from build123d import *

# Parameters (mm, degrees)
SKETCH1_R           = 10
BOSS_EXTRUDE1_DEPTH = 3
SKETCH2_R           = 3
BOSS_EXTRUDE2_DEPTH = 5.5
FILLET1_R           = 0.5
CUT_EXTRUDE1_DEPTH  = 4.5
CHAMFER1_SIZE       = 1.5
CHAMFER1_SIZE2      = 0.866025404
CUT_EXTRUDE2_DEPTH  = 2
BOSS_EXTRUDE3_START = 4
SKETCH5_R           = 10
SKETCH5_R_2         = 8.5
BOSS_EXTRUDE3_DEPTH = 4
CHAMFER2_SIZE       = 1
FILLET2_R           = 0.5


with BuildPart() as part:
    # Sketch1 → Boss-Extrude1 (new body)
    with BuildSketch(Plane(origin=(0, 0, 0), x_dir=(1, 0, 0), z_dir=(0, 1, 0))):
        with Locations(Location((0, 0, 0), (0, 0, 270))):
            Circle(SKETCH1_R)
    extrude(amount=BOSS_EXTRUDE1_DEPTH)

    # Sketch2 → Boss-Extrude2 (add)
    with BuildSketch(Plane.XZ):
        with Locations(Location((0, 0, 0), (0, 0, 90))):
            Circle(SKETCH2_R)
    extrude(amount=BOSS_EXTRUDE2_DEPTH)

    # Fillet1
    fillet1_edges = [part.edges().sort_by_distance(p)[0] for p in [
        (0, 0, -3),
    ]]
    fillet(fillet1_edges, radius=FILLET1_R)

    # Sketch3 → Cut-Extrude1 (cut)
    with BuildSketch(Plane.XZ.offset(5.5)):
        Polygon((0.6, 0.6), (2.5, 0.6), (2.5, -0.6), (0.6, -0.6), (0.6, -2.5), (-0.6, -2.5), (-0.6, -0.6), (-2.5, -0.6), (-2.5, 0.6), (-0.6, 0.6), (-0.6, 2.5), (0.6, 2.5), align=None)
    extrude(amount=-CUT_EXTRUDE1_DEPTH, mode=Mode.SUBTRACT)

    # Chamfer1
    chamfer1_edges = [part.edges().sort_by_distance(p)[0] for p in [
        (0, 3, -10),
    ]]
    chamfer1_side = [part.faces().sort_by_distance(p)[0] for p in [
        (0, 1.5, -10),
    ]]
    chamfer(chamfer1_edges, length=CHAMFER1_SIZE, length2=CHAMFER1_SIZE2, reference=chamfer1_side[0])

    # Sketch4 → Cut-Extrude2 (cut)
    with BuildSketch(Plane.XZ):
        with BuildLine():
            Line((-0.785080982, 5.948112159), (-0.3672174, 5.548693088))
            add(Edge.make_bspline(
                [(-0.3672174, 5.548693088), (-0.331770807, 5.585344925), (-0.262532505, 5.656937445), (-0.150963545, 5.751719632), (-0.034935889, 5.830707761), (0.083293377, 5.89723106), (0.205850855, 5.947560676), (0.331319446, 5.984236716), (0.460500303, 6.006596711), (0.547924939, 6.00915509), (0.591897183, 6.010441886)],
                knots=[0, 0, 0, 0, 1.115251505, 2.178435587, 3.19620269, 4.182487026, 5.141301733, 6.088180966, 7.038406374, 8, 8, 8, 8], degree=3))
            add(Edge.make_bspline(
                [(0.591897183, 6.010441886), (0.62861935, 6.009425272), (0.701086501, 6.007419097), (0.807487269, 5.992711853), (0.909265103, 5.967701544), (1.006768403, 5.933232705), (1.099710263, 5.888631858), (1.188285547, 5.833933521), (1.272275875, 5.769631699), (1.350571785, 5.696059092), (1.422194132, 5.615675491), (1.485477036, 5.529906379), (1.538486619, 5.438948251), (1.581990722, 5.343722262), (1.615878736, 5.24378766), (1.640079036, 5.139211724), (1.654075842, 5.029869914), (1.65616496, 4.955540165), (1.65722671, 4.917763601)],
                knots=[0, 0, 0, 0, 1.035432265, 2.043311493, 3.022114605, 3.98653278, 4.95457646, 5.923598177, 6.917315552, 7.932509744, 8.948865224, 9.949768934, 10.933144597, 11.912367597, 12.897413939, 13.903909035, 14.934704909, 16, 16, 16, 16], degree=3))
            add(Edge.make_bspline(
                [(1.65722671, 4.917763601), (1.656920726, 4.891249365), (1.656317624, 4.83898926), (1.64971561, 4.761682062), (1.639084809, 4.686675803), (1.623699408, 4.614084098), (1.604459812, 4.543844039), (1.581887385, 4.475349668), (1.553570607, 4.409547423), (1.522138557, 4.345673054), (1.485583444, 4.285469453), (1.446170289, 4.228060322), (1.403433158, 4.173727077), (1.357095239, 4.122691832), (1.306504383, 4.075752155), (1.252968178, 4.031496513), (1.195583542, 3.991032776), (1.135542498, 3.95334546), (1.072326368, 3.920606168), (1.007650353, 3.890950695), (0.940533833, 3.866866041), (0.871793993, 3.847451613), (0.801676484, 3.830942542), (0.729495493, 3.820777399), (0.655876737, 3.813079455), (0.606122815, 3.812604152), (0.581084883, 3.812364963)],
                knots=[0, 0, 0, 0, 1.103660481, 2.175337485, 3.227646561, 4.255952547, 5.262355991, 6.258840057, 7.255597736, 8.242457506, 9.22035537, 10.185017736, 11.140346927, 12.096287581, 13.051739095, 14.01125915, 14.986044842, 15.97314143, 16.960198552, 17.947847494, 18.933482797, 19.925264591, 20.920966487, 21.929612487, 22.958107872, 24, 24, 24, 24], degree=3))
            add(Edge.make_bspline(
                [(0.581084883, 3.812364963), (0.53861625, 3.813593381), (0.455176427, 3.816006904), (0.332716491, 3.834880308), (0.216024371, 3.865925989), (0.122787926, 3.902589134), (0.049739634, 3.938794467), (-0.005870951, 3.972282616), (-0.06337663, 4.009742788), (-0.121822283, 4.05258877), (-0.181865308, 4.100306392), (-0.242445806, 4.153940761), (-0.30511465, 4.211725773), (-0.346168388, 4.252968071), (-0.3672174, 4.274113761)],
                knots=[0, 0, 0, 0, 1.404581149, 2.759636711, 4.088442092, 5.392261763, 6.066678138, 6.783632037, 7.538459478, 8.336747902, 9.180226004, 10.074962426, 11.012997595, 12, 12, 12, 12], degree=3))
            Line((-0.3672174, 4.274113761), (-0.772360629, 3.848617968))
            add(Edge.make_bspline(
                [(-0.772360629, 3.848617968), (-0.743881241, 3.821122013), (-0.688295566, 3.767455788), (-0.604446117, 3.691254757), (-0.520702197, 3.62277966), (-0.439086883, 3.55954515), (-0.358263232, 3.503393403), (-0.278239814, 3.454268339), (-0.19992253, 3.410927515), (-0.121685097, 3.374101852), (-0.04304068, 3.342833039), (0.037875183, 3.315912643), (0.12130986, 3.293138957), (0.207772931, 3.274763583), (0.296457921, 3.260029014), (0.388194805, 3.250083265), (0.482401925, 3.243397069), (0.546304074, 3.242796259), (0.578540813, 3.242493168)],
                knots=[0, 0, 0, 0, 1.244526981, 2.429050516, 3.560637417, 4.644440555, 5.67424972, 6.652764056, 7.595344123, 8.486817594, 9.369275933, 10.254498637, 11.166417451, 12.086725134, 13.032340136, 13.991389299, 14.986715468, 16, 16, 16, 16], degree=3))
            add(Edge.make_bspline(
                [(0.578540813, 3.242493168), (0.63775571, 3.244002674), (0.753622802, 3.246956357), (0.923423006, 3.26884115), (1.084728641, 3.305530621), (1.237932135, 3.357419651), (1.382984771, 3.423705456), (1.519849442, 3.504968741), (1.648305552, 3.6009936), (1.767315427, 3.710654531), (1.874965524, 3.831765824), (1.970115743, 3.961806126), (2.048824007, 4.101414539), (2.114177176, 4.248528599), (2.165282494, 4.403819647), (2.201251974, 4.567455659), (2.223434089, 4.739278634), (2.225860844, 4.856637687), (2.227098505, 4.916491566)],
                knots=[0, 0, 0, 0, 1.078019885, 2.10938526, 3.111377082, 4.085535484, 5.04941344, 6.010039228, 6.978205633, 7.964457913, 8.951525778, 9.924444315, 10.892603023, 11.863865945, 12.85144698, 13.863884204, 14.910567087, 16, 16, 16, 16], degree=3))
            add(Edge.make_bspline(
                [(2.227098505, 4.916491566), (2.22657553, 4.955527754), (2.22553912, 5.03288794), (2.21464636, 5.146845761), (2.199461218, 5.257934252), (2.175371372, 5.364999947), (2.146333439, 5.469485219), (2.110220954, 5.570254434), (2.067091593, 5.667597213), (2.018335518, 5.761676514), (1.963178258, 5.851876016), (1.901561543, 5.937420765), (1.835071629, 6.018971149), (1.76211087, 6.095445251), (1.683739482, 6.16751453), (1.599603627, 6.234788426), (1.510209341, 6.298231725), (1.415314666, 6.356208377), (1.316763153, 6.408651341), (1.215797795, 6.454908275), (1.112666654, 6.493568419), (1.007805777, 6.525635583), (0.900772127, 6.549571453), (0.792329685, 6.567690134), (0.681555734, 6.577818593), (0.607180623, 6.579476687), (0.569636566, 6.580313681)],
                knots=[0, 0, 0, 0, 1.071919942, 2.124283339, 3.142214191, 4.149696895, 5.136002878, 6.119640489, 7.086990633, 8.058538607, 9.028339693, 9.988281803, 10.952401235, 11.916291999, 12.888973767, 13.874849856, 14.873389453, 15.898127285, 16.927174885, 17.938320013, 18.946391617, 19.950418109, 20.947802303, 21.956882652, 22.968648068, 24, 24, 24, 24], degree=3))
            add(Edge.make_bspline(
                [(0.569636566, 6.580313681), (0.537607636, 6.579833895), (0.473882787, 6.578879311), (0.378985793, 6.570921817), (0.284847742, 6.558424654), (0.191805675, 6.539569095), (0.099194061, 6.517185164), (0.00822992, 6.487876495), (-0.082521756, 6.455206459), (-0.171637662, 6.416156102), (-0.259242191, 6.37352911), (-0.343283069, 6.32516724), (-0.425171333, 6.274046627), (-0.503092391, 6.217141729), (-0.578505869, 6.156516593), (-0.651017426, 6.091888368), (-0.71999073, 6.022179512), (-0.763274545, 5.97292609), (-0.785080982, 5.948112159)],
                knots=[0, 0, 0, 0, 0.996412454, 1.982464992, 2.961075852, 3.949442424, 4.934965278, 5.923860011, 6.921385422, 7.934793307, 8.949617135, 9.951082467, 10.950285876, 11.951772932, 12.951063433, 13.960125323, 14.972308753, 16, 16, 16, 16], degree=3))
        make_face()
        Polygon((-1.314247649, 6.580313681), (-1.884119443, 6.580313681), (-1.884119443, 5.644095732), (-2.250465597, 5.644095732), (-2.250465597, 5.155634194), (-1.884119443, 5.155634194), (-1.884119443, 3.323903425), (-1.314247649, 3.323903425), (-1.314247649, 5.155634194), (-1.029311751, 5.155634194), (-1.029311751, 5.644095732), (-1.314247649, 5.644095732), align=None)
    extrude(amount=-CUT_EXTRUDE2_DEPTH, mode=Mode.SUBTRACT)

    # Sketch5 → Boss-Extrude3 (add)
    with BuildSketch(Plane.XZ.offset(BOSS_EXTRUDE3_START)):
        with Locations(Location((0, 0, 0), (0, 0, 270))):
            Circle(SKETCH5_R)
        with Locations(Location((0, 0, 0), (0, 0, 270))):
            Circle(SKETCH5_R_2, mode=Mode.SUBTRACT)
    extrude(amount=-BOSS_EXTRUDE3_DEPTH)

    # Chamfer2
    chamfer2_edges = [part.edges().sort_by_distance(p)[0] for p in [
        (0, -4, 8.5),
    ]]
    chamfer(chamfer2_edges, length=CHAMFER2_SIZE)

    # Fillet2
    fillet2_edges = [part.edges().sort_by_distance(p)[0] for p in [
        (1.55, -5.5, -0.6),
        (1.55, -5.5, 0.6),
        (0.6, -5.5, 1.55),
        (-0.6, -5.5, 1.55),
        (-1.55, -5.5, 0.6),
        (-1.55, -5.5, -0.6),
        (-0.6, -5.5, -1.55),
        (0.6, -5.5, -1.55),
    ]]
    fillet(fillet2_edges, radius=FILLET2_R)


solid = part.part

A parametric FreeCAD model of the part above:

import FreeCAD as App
import Part
import Sketcher

V = App.Vector
Q = App.Units.Quantity


def edges_at(feature, points):
    """Names of the edges that pass closest to the given points."""
    edges = feature.Shape.Edges
    near = lambda p: min(range(len(edges)), key=lambda i: edges[i].distToShape(Part.Vertex(*p))[0])
    return sorted({f"Edge{near(p) + 1}" for p in points})

doc = App.newDocument("Part")
body = doc.addObject("PartDesign::Body", "Body")

# Sketch on XZ plane
sketch1 = body.newObject("Sketcher::SketchObject", "Sketch")
sketch1.AttachmentSupport = (doc.getObject("XZ_Plane"), [""])
sketch1.MapMode = "FlatFace"
sketch1.addGeometry(Part.Circle(V(0, 0, 0), V(0, 0, 1), 10), False)
sketch1.addConstraint([
    Sketcher.Constraint("Coincident", 0, 3, -1, 1),
    Sketcher.Constraint("Diameter", 0, Q("20 mm")),
])
pad1 = body.newObject("PartDesign::Pad", "Pad")
pad1.Profile = sketch1
pad1.Length = 3
pad1.Reversed = True

# Sketch on XZ plane
sketch2 = body.newObject("Sketcher::SketchObject", "Sketch001")
sketch2.AttachmentSupport = (doc.getObject("XZ_Plane"), [""])
sketch2.MapMode = "FlatFace"
sketch2.addGeometry(Part.Circle(V(0, 0, 0), V(0, 0, 1), 3), False)
sketch2.addConstraint([
    Sketcher.Constraint("Coincident", 0, 3, -1, 1),
    Sketcher.Constraint("Diameter", 0, Q("6 mm")),
])
pad2 = body.newObject("PartDesign::Pad", "Pad001")
pad2.Profile = sketch2
pad2.Length = 5.5
doc.recompute()

fillet = body.newObject("PartDesign::Fillet", "Fillet")
fillet.Base = (pad2, edges_at(pad2, [(0, 0, -3)]))
fillet.Radius = 0.5

# Sketch on XZ plane
sketch3 = body.newObject("Sketcher::SketchObject", "Sketch002")
sketch3.AttachmentSupport = (doc.getObject("XZ_Plane"), [""])
sketch3.MapMode = "FlatFace"
sketch3.AttachmentOffset = App.Placement(V(0, 0, 5.5), App.Rotation())
sketch3.addGeometry([
    Part.LineSegment(V(2.5, 0.6, 0), V(0.6, 0.6, 0)),  # 0
    Part.LineSegment(V(0.6, 0.6, 0), V(0.6, 2.5, 0)),  # 1
    Part.LineSegment(V(0.6, 2.5, 0), V(-0.6, 2.5, 0)),  # 2
    Part.LineSegment(V(-0.6, 2.5, 0), V(-0.6, 0.6, 0)),  # 3
    Part.LineSegment(V(-0.6, 0.6, 0), V(-2.5, 0.6, 0)),  # 4
    Part.LineSegment(V(-2.5, 0.6, 0), V(-2.5, -0.6, 0)),  # 5
    Part.LineSegment(V(-2.5, -0.6, 0), V(-0.6, -0.6, 0)),  # 6
    Part.LineSegment(V(-0.6, -0.6, 0), V(-0.6, -2.5, 0)),  # 7
    Part.LineSegment(V(-0.6, -2.5, 0), V(0.6, -2.5, 0)),  # 8
    Part.LineSegment(V(0.6, -2.5, 0), V(0.6, -0.6, 0)),  # 9
    Part.LineSegment(V(0.6, -0.6, 0), V(2.5, -0.6, 0)),  # 10
    Part.LineSegment(V(2.5, -0.6, 0), V(2.5, 0.6, 0)),  # 11
], False)
sketch3.addConstraint([
    Sketcher.Constraint("Coincident", 0, 2, 1, 1),
    Sketcher.Constraint("Coincident", 1, 2, 2, 1),
    Sketcher.Constraint("Coincident", 2, 2, 3, 1),
    Sketcher.Constraint("Coincident", 3, 2, 4, 1),
    Sketcher.Constraint("Coincident", 4, 2, 5, 1),
    Sketcher.Constraint("Coincident", 5, 2, 6, 1),
    Sketcher.Constraint("Coincident", 6, 2, 7, 1),
    Sketcher.Constraint("Coincident", 7, 2, 8, 1),
    Sketcher.Constraint("Coincident", 8, 2, 9, 1),
    Sketcher.Constraint("Coincident", 9, 2, 10, 1),
    Sketcher.Constraint("Coincident", 10, 2, 11, 1),
    Sketcher.Constraint("Coincident", 11, 2, 0, 1),
    Sketcher.Constraint("Horizontal", 0),
    Sketcher.Constraint("Vertical", 1),
    Sketcher.Constraint("Horizontal", 2),
    Sketcher.Constraint("Vertical", 3),
    Sketcher.Constraint("Horizontal", 4),
    Sketcher.Constraint("Vertical", 5),
    Sketcher.Constraint("Horizontal", 6),
    Sketcher.Constraint("Vertical", 7),
    Sketcher.Constraint("Horizontal", 8),
    Sketcher.Constraint("Vertical", 9),
    Sketcher.Constraint("Horizontal", 10),
    Sketcher.Constraint("Vertical", 11),
    Sketcher.Constraint("Symmetric", 0, 2, 6, 2, -1, 1),
    Sketcher.Constraint("Symmetric", 2, 2, 8, 2, -1, 1),
    Sketcher.Constraint("Symmetric", 4, 2, 10, 2, -1, 1),
    Sketcher.Constraint("Symmetric", 0, 2, 3, 2, -2),
    Sketcher.Constraint("Equal", 10, 1),
    Sketcher.Constraint("Equal", 8, 5),
    Sketcher.Constraint("DistanceX", 0, 2, 0, 1, Q("1.9 mm")),
    Sketcher.Constraint("DistanceX", 2, 2, 2, 1, Q("1.2 mm")),
])
pocket1 = body.newObject("PartDesign::Pocket", "Pocket")
pocket1.Profile = sketch3
pocket1.Length = 4.5
doc.recompute()

chamfer = body.newObject("PartDesign::Chamfer", "Chamfer")
chamfer.Base = (pocket1, edges_at(pocket1, [(0, 3, -10)]))
chamfer.ChamferType = "Two distances"
chamfer.Size = 1.5
chamfer.Size2 = 0.866025

# Sketch on XZ plane
sketch4 = body.newObject("Sketcher::SketchObject", "Sketch003")
sketch4.AttachmentSupport = (doc.getObject("XZ_Plane"), [""])
sketch4.MapMode = "FlatFace"
sketch4.addGeometry([
    Part.LineSegment(V(-0.785081, 5.948112, 0), V(-0.367217, 5.548693, 0)),  # 0
    Part.BSplineCurve([V(-0.367217, 5.548693, 0), V(-0.331771, 5.585345, 0), V(-0.262533, 5.656937, 0), V(-0.150964, 5.75172, 0), V(-0.034936, 5.830708, 0), V(0.083293, 5.897231, 0), V(0.205851, 5.947561, 0), V(0.331319, 5.984237, 0), V(0.4605, 6.006597, 0), V(0.547925, 6.009155, 0), V(0.591897, 6.010442, 0)], [4, 1, 1, 1, 1, 1, 1, 1, 4], [0, 1.115251505, 2.178435587, 3.19620269, 4.182487026, 5.141301733, 6.088180966, 7.038406374, 8], False, 3, [1, 1, 1, 1, 1, 1, 1, 1, 1, 1, 1], False),  # 1
    Part.BSplineCurve([V(0.591897, 6.010442, 0), V(0.628619, 6.009425, 0), V(0.701087, 6.007419, 0), V(0.807487, 5.992712, 0), V(0.909265, 5.967702, 0), V(1.006768, 5.933233, 0), V(1.09971, 5.888632, 0), V(1.188286, 5.833934, 0), V(1.272276, 5.769632, 0), V(1.350572, 5.696059, 0), V(1.422194, 5.615675, 0), V(1.485477, 5.529906, 0), V(1.538487, 5.438948, 0), V(1.581991, 5.343722, 0), V(1.615879, 5.243788, 0), V(1.640079, 5.139212, 0), V(1.654076, 5.02987, 0), V(1.656165, 4.95554, 0), V(1.657227, 4.917764, 0)], [4, 1, 1, 1, 1, 1, 1, 1, 1, 1, 1, 1, 1, 1, 1, 1, 4], [0, 1.035432265, 2.043311493, 3.022114605, 3.98653278, 4.95457646, 5.923598177, 6.917315552, 7.932509744, 8.948865224, 9.949768934, 10.933144597, 11.912367597, 12.897413939, 13.903909035, 14.934704909, 16], False, 3, [1, 1, 1, 1, 1, 1, 1, 1, 1, 1, 1, 1, 1, 1, 1, 1, 1, 1, 1], False),  # 2
    Part.BSplineCurve([V(1.657227, 4.917764, 0), V(1.656921, 4.891249, 0), V(1.656318, 4.838989, 0), V(1.649716, 4.761682, 0), V(1.639085, 4.686676, 0), V(1.623699, 4.614084, 0), V(1.60446, 4.543844, 0), V(1.581887, 4.47535, 0), V(1.553571, 4.409547, 0), V(1.522139, 4.345673, 0), V(1.485583, 4.285469, 0), V(1.44617, 4.22806, 0), V(1.403433, 4.173727, 0), V(1.357095, 4.122692, 0), V(1.306504, 4.075752, 0), V(1.252968, 4.031497, 0), V(1.195584, 3.991033, 0), V(1.135542, 3.953345, 0), V(1.072326, 3.920606, 0), V(1.00765, 3.890951, 0), V(0.940534, 3.866866, 0), V(0.871794, 3.847452, 0), V(0.801676, 3.830943, 0), V(0.729495, 3.820777, 0), V(0.655877, 3.813079, 0), V(0.606123, 3.812604, 0), V(0.581085, 3.812365, 0)], [4, 1, 1, 1, 1, 1, 1, 1, 1, 1, 1, 1, 1, 1, 1, 1, 1, 1, 1, 1, 1, 1, 1, 1, 4], [0, 1.103660481, 2.175337485, 3.227646561, 4.255952547, 5.262355991, 6.258840057, 7.255597736, 8.242457506, 9.22035537, 10.185017736, 11.140346927, 12.096287581, 13.051739095, 14.01125915, 14.986044842, 15.97314143, 16.960198552, 17.947847494, 18.933482797, 19.925264591, 20.920966487, 21.929612487, 22.958107872, 24], False, 3, [1, 1, 1, 1, 1, 1, 1, 1, 1, 1, 1, 1, 1, 1, 1, 1, 1, 1, 1, 1, 1, 1, 1, 1, 1, 1, 1], False),  # 3
    Part.BSplineCurve([V(0.581085, 3.812365, 0), V(0.538616, 3.813593, 0), V(0.455176, 3.816007, 0), V(0.332716, 3.83488, 0), V(0.216024, 3.865926, 0), V(0.122788, 3.902589, 0), V(0.04974, 3.938794, 0), V(-0.005871, 3.972283, 0), V(-0.063377, 4.009743, 0), V(-0.121822, 4.052589, 0), V(-0.181865, 4.100306, 0), V(-0.242446, 4.153941, 0), V(-0.305115, 4.211726, 0), V(-0.346168, 4.252968, 0), V(-0.367217, 4.274114, 0)], [4, 1, 1, 1, 1, 1, 1, 1, 1, 1, 1, 1, 4], [0, 1.404581149, 2.759636711, 4.088442092, 5.392261763, 6.066678138, 6.783632037, 7.538459478, 8.336747902, 9.180226004, 10.074962426, 11.012997595, 12], False, 3, [1, 1, 1, 1, 1, 1, 1, 1, 1, 1, 1, 1, 1, 1, 1], False),  # 4
    Part.LineSegment(V(-0.367217, 4.274114, 0), V(-0.772361, 3.848618, 0)),  # 5
    Part.BSplineCurve([V(-0.772361, 3.848618, 0), V(-0.743881, 3.821122, 0), V(-0.688296, 3.767456, 0), V(-0.604446, 3.691255, 0), V(-0.520702, 3.62278, 0), V(-0.439087, 3.559545, 0), V(-0.358263, 3.503393, 0), V(-0.27824, 3.454268, 0), V(-0.199923, 3.410928, 0), V(-0.121685, 3.374102, 0), V(-0.043041, 3.342833, 0), V(0.037875, 3.315913, 0), V(0.12131, 3.293139, 0), V(0.207773, 3.274764, 0), V(0.296458, 3.260029, 0), V(0.388195, 3.250083, 0), V(0.482402, 3.243397, 0), V(0.546304, 3.242796, 0), V(0.578541, 3.242493, 0)], [4, 1, 1, 1, 1, 1, 1, 1, 1, 1, 1, 1, 1, 1, 1, 1, 4], [0, 1.244526981, 2.429050516, 3.560637417, 4.644440555, 5.67424972, 6.652764056, 7.595344123, 8.486817594, 9.369275933, 10.254498637, 11.166417451, 12.086725134, 13.032340136, 13.991389299, 14.986715468, 16], False, 3, [1, 1, 1, 1, 1, 1, 1, 1, 1, 1, 1, 1, 1, 1, 1, 1, 1, 1, 1], False),  # 6
    Part.BSplineCurve([V(0.578541, 3.242493, 0), V(0.637756, 3.244003, 0), V(0.753623, 3.246956, 0), V(0.923423, 3.268841, 0), V(1.084729, 3.305531, 0), V(1.237932, 3.35742, 0), V(1.382985, 3.423705, 0), V(1.519849, 3.504969, 0), V(1.648306, 3.600994, 0), V(1.767315, 3.710655, 0), V(1.874966, 3.831766, 0), V(1.970116, 3.961806, 0), V(2.048824, 4.101415, 0), V(2.114177, 4.248529, 0), V(2.165282, 4.40382, 0), V(2.201252, 4.567456, 0), V(2.223434, 4.739279, 0), V(2.225861, 4.856638, 0), V(2.227099, 4.916492, 0)], [4, 1, 1, 1, 1, 1, 1, 1, 1, 1, 1, 1, 1, 1, 1, 1, 4], [0, 1.078019885, 2.10938526, 3.111377082, 4.085535484, 5.04941344, 6.010039228, 6.978205633, 7.964457913, 8.951525778, 9.924444315, 10.892603023, 11.863865945, 12.85144698, 13.863884204, 14.910567087, 16], False, 3, [1, 1, 1, 1, 1, 1, 1, 1, 1, 1, 1, 1, 1, 1, 1, 1, 1, 1, 1], False),  # 7
    Part.BSplineCurve([V(2.227099, 4.916492, 0), V(2.226576, 4.955528, 0), V(2.225539, 5.032888, 0), V(2.214646, 5.146846, 0), V(2.199461, 5.257934, 0), V(2.175371, 5.365, 0), V(2.146333, 5.469485, 0), V(2.110221, 5.570254, 0), V(2.067092, 5.667597, 0), V(2.018336, 5.761677, 0), V(1.963178, 5.851876, 0), V(1.901562, 5.937421, 0), V(1.835072, 6.018971, 0), V(1.762111, 6.095445, 0), V(1.683739, 6.167515, 0), V(1.599604, 6.234788, 0), V(1.510209, 6.298232, 0), V(1.415315, 6.356208, 0), V(1.316763, 6.408651, 0), V(1.215798, 6.454908, 0), V(1.112667, 6.493568, 0), V(1.007806, 6.525636, 0), V(0.900772, 6.549571, 0), V(0.79233, 6.56769, 0), V(0.681556, 6.577819, 0), V(0.607181, 6.579477, 0), V(0.569637, 6.580314, 0)], [4, 1, 1, 1, 1, 1, 1, 1, 1, 1, 1, 1, 1, 1, 1, 1, 1, 1, 1, 1, 1, 1, 1, 1, 4], [0, 1.071919942, 2.124283339, 3.142214191, 4.149696895, 5.136002878, 6.119640489, 7.086990633, 8.058538607, 9.028339693, 9.988281803, 10.952401235, 11.916291999, 12.888973767, 13.874849856, 14.873389453, 15.898127285, 16.927174885, 17.938320013, 18.946391617, 19.950418109, 20.947802303, 21.956882652, 22.968648068, 24], False, 3, [1, 1, 1, 1, 1, 1, 1, 1, 1, 1, 1, 1, 1, 1, 1, 1, 1, 1, 1, 1, 1, 1, 1, 1, 1, 1, 1], False),  # 8
    Part.BSplineCurve([V(0.569637, 6.580314, 0), V(0.537608, 6.579834, 0), V(0.473883, 6.578879, 0), V(0.378986, 6.570922, 0), V(0.284848, 6.558425, 0), V(0.191806, 6.539569, 0), V(0.099194, 6.517185, 0), V(0.00823, 6.487876, 0), V(-0.082522, 6.455206, 0), V(-0.171638, 6.416156, 0), V(-0.259242, 6.373529, 0), V(-0.343283, 6.325167, 0), V(-0.425171, 6.274047, 0), V(-0.503092, 6.217142, 0), V(-0.578506, 6.156517, 0), V(-0.651017, 6.091888, 0), V(-0.719991, 6.02218, 0), V(-0.763275, 5.972926, 0), V(-0.785081, 5.948112, 0)], [4, 1, 1, 1, 1, 1, 1, 1, 1, 1, 1, 1, 1, 1, 1, 1, 4], [0, 0.996412454, 1.982464992, 2.961075852, 3.949442424, 4.934965278, 5.923860011, 6.921385422, 7.934793307, 8.949617135, 9.951082467, 10.950285876, 11.951772932, 12.951063433, 13.960125323, 14.972308753, 16], False, 3, [1, 1, 1, 1, 1, 1, 1, 1, 1, 1, 1, 1, 1, 1, 1, 1, 1, 1, 1], False),  # 9
    Part.LineSegment(V(-1.314248, 6.580314, 0), V(-1.884119, 6.580314, 0)),  # 10
    Part.LineSegment(V(-1.884119, 6.580314, 0), V(-1.884119, 5.644096, 0)),  # 11
    Part.LineSegment(V(-1.884119, 5.644096, 0), V(-2.250466, 5.644096, 0)),  # 12
    Part.LineSegment(V(-2.250466, 5.644096, 0), V(-2.250466, 5.155634, 0)),  # 13
    Part.LineSegment(V(-2.250466, 5.155634, 0), V(-1.884119, 5.155634, 0)),  # 14
    Part.LineSegment(V(-1.884119, 5.155634, 0), V(-1.884119, 3.323903, 0)),  # 15
    Part.LineSegment(V(-1.884119, 3.323903, 0), V(-1.314248, 3.323903, 0)),  # 16
    Part.LineSegment(V(-1.314248, 3.323903, 0), V(-1.314248, 5.155634, 0)),  # 17
    Part.LineSegment(V(-1.314248, 5.155634, 0), V(-1.029312, 5.155634, 0)),  # 18
    Part.LineSegment(V(-1.029312, 5.155634, 0), V(-1.029312, 5.644096, 0)),  # 19
    Part.LineSegment(V(-1.029312, 5.644096, 0), V(-1.314248, 5.644096, 0)),  # 20
    Part.LineSegment(V(-1.314248, 5.644096, 0), V(-1.314248, 6.580314, 0)),  # 21
], False)
sketch4.addConstraint([
    Sketcher.Constraint("Block", 1),
    Sketcher.Constraint("Block", 2),
    Sketcher.Constraint("Block", 3),
    Sketcher.Constraint("Block", 4),
    Sketcher.Constraint("Block", 6),
    Sketcher.Constraint("Block", 7),
    Sketcher.Constraint("Block", 8),
    Sketcher.Constraint("Block", 9),
    Sketcher.Constraint("Coincident", 0, 2, 1, 1),
    Sketcher.Constraint("Coincident", 4, 2, 5, 1),
    Sketcher.Constraint("Coincident", 5, 2, 6, 1),
    Sketcher.Constraint("Coincident", 9, 2, 0, 1),
    Sketcher.Constraint("Coincident", 10, 2, 11, 1),
    Sketcher.Constraint("Coincident", 11, 2, 12, 1),
    Sketcher.Constraint("Coincident", 12, 2, 13, 1),
    Sketcher.Constraint("Coincident", 13, 2, 14, 1),
    Sketcher.Constraint("Coincident", 14, 2, 15, 1),
    Sketcher.Constraint("Coincident", 15, 2, 16, 1),
    Sketcher.Constraint("Coincident", 16, 2, 17, 1),
    Sketcher.Constraint("Coincident", 17, 2, 18, 1),
    Sketcher.Constraint("Coincident", 18, 2, 19, 1),
    Sketcher.Constraint("Coincident", 19, 2, 20, 1),
    Sketcher.Constraint("Coincident", 20, 2, 21, 1),
    Sketcher.Constraint("Coincident", 21, 2, 10, 1),
    Sketcher.Constraint("Horizontal", 10),
    Sketcher.Constraint("Vertical", 11),
    Sketcher.Constraint("Horizontal", 12),
    Sketcher.Constraint("Vertical", 13),
    Sketcher.Constraint("Horizontal", 14),
    Sketcher.Constraint("Vertical", 15),
    Sketcher.Constraint("Horizontal", 16),
    Sketcher.Constraint("Vertical", 17),
    Sketcher.Constraint("Horizontal", 18),
    Sketcher.Constraint("Vertical", 19),
    Sketcher.Constraint("Horizontal", 20),
    Sketcher.Constraint("Vertical", 21),
    Sketcher.Constraint("Horizontal", 14, 2, 17, 2),
    Sketcher.Constraint("Horizontal", 12, 2, 19, 2),
    Sketcher.Constraint("Vertical", 11, 2, 14, 2),
    Sketcher.Constraint("Vertical", 17, 2, 20, 2),
    Sketcher.Constraint("DistanceX", 10, 2, 10, 1, Q("0.569872 mm")),
    Sketcher.Constraint("DistanceY", 13, 2, 13, 1, Q("0.488462 mm")),
    Sketcher.Constraint("DistanceY", 15, 2, 15, 1, Q("1.831731 mm")),
    Sketcher.Constraint("DistanceX", 12, 2, 12, 1, Q("0.366346 mm")),
    Sketcher.Constraint("DistanceX", 18, 1, 18, 2, Q("0.284936 mm")),
    Sketcher.Constraint("DistanceY", 11, 2, 11, 1, Q("0.936218 mm")),
    Sketcher.Constraint("DistanceX", 10, 2, -1, 1, Q("1.884119 mm")),
    Sketcher.Constraint("DistanceY", 0, 2, 10, 2, Q("1.031621 mm")),
])
pocket2 = body.newObject("PartDesign::Pocket", "Pocket001")
pocket2.Profile = sketch4
pocket2.Length = 2

# Sketch on XZ plane
sketch5 = body.newObject("Sketcher::SketchObject", "Sketch004")
sketch5.AttachmentSupport = (doc.getObject("XZ_Plane"), [""])
sketch5.MapMode = "FlatFace"
sketch5.AttachmentOffset = App.Placement(V(0, 0, 4), App.Rotation())
sketch5.addGeometry([
    Part.Circle(V(0, 0, 0), V(0, 0, 1), 10),
    Part.Circle(V(0, 0, 0), V(0, 0, 1), 8),
], False)
sketch5.addConstraint([
    Sketcher.Constraint("Coincident", 0, 3, -1, 1),
    Sketcher.Constraint("Coincident", 1, 3, -1, 1),
    Sketcher.Constraint("Diameter", 0, Q("20 mm")),
    Sketcher.Constraint("Diameter", 1, Q("17 mm")),
])
pad3 = body.newObject("PartDesign::Pad", "Pad002")
pad3.Profile = sketch5
pad3.Length = 4
pad3.Reversed = True
doc.recompute()

chamfer2 = body.newObject("PartDesign::Chamfer", "Chamfer001")
chamfer2.Base = (pad3, edges_at(pad3, [(0, -4, 8.5)]))
chamfer2.Size = 1
doc.recompute()

fillet2 = body.newObject("PartDesign::Fillet", "Fillet001")
fillet2.Base = (chamfer2, edges_at(chamfer2, [
    (1.55, -5.5, -0.6),
    (1.55, -5.5, 0.6),
    (0.6, -5.5, 1.55),
    (-0.6, -5.5, 1.55),
    (-1.55, -5.5, 0.6),
    (-1.55, -5.5, -0.6),
    (-0.6, -5.5, -1.55),
    (0.6, -5.5, -1.55),
]))
fillet2.Radius = 0.5

doc.recompute()
